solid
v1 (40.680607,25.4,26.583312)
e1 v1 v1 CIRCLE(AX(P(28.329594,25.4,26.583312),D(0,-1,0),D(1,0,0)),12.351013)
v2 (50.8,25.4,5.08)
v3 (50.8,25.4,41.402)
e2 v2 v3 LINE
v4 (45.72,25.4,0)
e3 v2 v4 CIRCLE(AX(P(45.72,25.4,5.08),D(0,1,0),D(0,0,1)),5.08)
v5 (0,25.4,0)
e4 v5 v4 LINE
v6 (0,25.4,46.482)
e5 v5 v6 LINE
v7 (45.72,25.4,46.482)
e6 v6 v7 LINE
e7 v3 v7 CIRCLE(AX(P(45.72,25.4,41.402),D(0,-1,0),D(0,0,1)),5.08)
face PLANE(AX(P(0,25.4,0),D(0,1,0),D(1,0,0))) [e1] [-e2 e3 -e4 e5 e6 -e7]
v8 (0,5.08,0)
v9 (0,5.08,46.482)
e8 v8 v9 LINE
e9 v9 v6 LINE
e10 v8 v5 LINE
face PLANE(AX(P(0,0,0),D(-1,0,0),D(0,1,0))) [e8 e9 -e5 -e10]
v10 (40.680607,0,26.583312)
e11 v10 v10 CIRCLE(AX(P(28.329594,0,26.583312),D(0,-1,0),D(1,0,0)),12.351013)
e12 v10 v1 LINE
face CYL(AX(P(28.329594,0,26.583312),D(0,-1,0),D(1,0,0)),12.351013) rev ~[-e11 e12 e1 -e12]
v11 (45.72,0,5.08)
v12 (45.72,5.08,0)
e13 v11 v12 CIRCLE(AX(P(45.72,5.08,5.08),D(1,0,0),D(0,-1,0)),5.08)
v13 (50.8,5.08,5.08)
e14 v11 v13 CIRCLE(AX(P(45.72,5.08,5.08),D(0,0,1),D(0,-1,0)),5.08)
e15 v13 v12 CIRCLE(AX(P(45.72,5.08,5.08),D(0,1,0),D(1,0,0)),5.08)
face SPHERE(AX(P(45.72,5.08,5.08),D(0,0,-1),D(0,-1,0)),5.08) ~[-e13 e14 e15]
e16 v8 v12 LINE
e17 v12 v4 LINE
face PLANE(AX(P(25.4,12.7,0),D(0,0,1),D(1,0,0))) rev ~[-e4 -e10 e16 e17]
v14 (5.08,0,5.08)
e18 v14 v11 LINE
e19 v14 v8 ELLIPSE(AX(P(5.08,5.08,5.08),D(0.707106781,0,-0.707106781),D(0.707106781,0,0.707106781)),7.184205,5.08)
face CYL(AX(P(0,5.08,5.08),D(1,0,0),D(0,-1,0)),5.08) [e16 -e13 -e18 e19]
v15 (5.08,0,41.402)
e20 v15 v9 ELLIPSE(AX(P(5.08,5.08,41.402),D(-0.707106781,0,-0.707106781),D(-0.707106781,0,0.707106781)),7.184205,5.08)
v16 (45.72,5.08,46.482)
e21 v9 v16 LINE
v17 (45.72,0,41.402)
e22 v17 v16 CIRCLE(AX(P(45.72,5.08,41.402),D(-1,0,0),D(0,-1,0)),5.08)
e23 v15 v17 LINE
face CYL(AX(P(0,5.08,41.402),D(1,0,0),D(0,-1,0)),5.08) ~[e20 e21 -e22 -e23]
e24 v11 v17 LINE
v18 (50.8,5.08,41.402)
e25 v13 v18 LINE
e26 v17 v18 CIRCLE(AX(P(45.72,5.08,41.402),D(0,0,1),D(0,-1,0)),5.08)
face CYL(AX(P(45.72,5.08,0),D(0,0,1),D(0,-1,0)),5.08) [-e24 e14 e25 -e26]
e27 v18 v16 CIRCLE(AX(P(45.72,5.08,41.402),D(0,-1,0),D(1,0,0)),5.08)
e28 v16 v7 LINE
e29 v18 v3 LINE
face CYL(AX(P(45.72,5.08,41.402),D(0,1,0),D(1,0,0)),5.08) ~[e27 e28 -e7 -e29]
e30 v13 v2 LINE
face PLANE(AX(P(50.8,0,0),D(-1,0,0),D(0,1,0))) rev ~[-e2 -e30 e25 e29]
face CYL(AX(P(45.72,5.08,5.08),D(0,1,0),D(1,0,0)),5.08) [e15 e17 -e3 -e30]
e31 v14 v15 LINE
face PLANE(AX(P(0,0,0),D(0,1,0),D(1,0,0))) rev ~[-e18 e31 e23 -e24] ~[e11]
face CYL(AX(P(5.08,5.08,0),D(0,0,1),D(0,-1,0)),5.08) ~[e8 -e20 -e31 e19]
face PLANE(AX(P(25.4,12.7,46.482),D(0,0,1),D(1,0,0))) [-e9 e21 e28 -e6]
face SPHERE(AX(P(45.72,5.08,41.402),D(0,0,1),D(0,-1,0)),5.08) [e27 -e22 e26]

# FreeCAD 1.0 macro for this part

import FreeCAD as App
import Part
import Sketcher
from FreeCAD import Vector
Q = App.Units.Quantity


def edges_at(feature, points):
    """Names of the edges that pass closest to the given points."""
    edges = feature.Shape.Edges
    near = lambda p: min(range(len(edges)), key=lambda i: edges[i].distToShape(Part.Vertex(*p))[0])
    return sorted({f"Edge{near(p) + 1}" for p in points})


def add_polygon(sketch, points):
    """Adds a closed chain of lines whose ends are joined by coincident constraints."""
    first, n = sketch.GeometryCount, len(points)
    for a, b in zip(points, points[1:] + points[:1]):
        sketch.addGeometry(Part.LineSegment(App.Vector(*a, 0), App.Vector(*b, 0)), False)
    for i in range(n):
        sketch.addConstraint(Sketcher.Constraint("Coincident", first + i, 2, first + (i + 1) % n, 1))

doc = App.newDocument("Part")
body = doc.addObject("PartDesign::Body", "Body")

# Sketch on XY plane
sketch1 = doc.addObject("Sketcher::SketchObject", "Sketch")
body.addObject(sketch1)
sketch1.AttachmentSupport = (doc.XY_Plane, [""])
sketch1.MapMode = "FlatFace"
add_polygon(sketch1, [(0, 25), (0, 0), (51, 0), (51, 25)])  # lines 0-3
sketch1.addConstraint(Sketcher.Constraint("Vertical", 0))
sketch1.addConstraint(Sketcher.Constraint("Horizontal", 1))
sketch1.addConstraint(Sketcher.Constraint("Vertical", 2))
sketch1.addConstraint(Sketcher.Constraint("Horizontal", 3))
sketch1.addConstraint(Sketcher.Constraint("Coincident", 0, 2, -1, 1))
sketch1.addConstraint(Sketcher.Constraint("DistanceX", 1, 1, 1, 2, Q("2 in")))
sketch1.addConstraint(Sketcher.Constraint("DistanceY", 0, 2, 0, 1, Q("1 in")))
pad1 = doc.addObject("PartDesign::Pad", "Pad")
body.addObject(pad1)
pad1.Profile = sketch1
pad1.Length = Q("1.83 in")

# Sketch on XZ plane
sketch2 = doc.addObject("Sketcher::SketchObject", "Sketch001")
body.addObject(sketch2)
sketch2.AttachmentSupport = (doc.XZ_Plane, [""])
sketch2.MapMode = "FlatFace"
sketch2.addGeometry(Part.Circle(Vector(28, 27, 0), Vector(0, 0, 1), 12), False)
sketch2.addConstraint(Sketcher.Constraint("Diameter", 0, 24.702026))
sketch2.addConstraint(Sketcher.Constraint("DistanceY", -1, 1, 0, 3, 26.583312))
sketch2.addConstraint(Sketcher.Constraint("DistanceX", -1, 1, 0, 3, 28.329594))
pocket1 = doc.addObject("PartDesign::Pocket", "Pocket")
body.addObject(pocket1)
pocket1.Profile = sketch2
pocket1.Length = Q("1 in")
doc.recompute()

fillet = doc.addObject("PartDesign::Fillet", "Fillet")
body.addObject(fillet)
fillet.Base = (pocket1, edges_at(pocket1, [(50.8, 0, 23.241)]))
fillet.Radius = Q("0.2 in")
doc.recompute()

fillet2 = doc.addObject("PartDesign::Fillet", "Fillet001")
body.addObject(fillet2)
fillet2.Base = (fillet, edges_at(fillet, [(22.86, 0, 0), (0, 0, 23.241), (22.86, 0, 46.482)]))
fillet2.Radius = Q("0.2 in")

doc.recompute()
